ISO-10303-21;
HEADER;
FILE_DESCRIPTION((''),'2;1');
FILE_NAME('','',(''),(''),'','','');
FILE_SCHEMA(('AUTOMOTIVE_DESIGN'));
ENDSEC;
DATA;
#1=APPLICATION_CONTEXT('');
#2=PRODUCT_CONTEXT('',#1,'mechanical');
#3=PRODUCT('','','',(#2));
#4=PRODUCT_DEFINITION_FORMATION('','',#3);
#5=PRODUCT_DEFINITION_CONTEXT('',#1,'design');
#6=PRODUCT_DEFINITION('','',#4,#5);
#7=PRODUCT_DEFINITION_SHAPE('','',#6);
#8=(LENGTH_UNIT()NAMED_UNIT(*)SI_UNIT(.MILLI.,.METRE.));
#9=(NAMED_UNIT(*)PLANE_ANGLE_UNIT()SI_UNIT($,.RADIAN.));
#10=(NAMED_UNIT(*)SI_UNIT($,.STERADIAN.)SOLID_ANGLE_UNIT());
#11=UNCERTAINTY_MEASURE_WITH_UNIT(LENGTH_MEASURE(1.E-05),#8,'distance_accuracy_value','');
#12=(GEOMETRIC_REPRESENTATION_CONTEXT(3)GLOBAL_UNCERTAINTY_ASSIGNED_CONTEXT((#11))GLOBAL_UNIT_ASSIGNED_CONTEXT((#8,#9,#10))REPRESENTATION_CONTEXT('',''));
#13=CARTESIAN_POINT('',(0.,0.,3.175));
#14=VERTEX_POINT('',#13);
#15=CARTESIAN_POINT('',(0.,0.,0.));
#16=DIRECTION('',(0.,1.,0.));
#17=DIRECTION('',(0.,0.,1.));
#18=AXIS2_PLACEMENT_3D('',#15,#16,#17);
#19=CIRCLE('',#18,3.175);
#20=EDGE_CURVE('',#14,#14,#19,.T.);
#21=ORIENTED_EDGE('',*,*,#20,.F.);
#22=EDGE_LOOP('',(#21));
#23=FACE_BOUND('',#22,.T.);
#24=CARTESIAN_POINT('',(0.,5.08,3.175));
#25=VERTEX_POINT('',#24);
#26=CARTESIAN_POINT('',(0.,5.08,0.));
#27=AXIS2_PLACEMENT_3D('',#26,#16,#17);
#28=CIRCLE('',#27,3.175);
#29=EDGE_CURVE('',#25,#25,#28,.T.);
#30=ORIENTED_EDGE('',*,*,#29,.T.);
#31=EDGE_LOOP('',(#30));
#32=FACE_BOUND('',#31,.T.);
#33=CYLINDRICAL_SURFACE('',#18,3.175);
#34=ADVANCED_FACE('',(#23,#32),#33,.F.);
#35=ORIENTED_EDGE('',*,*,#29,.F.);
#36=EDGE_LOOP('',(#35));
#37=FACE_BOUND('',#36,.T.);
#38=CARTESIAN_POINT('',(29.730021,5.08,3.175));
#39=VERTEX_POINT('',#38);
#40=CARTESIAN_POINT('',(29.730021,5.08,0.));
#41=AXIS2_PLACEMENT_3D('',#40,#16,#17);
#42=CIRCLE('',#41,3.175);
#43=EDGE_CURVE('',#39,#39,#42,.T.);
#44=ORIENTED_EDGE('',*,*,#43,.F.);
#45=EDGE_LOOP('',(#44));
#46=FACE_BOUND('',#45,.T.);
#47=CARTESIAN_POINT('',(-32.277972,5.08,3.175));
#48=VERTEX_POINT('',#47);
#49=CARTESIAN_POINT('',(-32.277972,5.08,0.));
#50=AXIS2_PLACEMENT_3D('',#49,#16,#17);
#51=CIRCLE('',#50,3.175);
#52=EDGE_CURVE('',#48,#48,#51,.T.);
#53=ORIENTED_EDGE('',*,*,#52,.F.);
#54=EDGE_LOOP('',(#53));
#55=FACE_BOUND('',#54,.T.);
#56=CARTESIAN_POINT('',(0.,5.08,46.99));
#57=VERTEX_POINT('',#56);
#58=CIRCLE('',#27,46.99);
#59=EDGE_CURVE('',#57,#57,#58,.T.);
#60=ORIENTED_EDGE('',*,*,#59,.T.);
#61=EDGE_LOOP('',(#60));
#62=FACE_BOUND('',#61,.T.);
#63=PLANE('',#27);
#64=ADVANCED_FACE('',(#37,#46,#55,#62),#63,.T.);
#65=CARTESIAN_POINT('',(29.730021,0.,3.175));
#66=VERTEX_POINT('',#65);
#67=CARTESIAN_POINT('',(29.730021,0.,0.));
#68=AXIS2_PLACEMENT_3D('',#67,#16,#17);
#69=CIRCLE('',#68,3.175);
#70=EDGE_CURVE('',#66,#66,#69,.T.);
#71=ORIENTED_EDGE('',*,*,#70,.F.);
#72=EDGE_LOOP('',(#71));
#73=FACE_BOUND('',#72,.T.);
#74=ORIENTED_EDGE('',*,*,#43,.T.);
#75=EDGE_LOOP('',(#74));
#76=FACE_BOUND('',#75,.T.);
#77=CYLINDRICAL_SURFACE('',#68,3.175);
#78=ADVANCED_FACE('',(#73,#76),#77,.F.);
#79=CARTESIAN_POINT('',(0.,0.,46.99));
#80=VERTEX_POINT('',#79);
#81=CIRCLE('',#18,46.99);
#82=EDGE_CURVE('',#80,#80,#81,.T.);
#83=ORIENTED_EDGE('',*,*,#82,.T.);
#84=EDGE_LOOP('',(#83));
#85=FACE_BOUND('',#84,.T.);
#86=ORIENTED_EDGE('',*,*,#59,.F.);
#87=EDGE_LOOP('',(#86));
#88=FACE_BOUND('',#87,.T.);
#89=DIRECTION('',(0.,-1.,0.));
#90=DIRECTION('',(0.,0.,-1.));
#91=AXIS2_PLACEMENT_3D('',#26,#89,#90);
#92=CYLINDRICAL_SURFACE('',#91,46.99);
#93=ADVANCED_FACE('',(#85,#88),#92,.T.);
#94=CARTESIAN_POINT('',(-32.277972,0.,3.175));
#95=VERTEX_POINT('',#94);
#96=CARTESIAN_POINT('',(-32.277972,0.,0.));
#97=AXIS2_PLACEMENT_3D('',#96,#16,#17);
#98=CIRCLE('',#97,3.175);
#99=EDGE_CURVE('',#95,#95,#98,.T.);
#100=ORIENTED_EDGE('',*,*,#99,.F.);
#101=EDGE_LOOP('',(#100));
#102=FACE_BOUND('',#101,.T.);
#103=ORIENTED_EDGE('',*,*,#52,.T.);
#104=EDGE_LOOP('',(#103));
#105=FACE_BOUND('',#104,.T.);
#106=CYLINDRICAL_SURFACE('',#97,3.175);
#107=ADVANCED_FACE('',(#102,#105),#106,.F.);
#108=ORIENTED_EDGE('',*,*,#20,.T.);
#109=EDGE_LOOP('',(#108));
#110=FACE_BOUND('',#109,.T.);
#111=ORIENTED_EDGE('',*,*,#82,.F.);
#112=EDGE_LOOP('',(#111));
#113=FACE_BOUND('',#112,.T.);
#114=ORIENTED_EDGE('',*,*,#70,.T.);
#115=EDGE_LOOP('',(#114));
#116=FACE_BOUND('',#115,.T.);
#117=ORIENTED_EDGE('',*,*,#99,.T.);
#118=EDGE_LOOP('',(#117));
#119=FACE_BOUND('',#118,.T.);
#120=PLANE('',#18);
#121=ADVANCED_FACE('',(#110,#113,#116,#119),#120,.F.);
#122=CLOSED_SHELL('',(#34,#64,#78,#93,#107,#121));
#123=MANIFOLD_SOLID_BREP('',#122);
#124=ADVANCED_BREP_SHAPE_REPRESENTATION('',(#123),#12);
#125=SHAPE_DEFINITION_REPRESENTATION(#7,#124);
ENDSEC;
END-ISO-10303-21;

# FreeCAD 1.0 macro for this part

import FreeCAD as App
import Part
import Sketcher
from FreeCAD import Vector
Q = App.Units.Quantity

doc = App.newDocument("Part")
body = doc.addObject("PartDesign::Body", "Body")

# Sketch on XZ plane
sketch1 = body.newObject("Sketcher::SketchObject", "Sketch")
sketch1.AttachmentSupport = (doc.getObject("XZ_Plane"), [""])
sketch1.MapMode = "FlatFace"
sketch1.addGeometry(Part.Circle(Vector(0, 0, 0), Vector(0, 0, 1), 47), False)
sketch1.addConstraint([
    Sketcher.Constraint("Coincident", 0, 3, -1, 1),
    Sketcher.Constraint("Diameter", 0, Q("3.7 in")),
])
pad1 = body.newObject("PartDesign::Pad", "Pad")
pad1.Profile = sketch1
pad1.Length = Q("0.2 in")
pad1.Reversed = True

# Sketch on XZ plane
sketch2 = body.newObject("Sketcher::SketchObject", "Sketch001")
sketch2.AttachmentSupport = (doc.getObject("XZ_Plane"), [""])
sketch2.MapMode = "FlatFace"
sketch2.AttachmentOffset = App.Placement(Vector(0, 0, -0.2 * 25.4), App.Rotation())
sketch2.addGeometry([
    Part.Circle(Vector(-32.3, 0, 0), Vector(0, 0, 1), 3.2),
    Part.Circle(Vector(0, 0, 0), Vector(0, 0, 1), 3.2),
    Part.Circle(Vector(29.7, 0, 0), Vector(0, 0, 1), 3.2),
], False)
sketch2.addConstraint([
    Sketcher.Constraint("Coincident", 1, 3, -1, 1),
    Sketcher.Constraint("Equal", 0, 1),
    Sketcher.Constraint("Equal", 1, 2),
    Sketcher.Constraint("PointOnObject", 0, 3, -1),
    Sketcher.Constraint("PointOnObject", 2, 3, -1),
    Sketcher.Constraint("Diameter", 0, Q("0.25 in")),
    Sketcher.Constraint("DistanceX", 0, 3, -1, 1, Q("32.277972 mm")),
    Sketcher.Constraint("DistanceX", -1, 1, 2, 3, Q("29.730021 mm")),
])
pocket1 = body.newObject("PartDesign::Pocket", "Pocket")
pocket1.Profile = sketch2
pocket1.Type = "ThroughAll"
pocket1.Reversed = True

doc.recompute()
